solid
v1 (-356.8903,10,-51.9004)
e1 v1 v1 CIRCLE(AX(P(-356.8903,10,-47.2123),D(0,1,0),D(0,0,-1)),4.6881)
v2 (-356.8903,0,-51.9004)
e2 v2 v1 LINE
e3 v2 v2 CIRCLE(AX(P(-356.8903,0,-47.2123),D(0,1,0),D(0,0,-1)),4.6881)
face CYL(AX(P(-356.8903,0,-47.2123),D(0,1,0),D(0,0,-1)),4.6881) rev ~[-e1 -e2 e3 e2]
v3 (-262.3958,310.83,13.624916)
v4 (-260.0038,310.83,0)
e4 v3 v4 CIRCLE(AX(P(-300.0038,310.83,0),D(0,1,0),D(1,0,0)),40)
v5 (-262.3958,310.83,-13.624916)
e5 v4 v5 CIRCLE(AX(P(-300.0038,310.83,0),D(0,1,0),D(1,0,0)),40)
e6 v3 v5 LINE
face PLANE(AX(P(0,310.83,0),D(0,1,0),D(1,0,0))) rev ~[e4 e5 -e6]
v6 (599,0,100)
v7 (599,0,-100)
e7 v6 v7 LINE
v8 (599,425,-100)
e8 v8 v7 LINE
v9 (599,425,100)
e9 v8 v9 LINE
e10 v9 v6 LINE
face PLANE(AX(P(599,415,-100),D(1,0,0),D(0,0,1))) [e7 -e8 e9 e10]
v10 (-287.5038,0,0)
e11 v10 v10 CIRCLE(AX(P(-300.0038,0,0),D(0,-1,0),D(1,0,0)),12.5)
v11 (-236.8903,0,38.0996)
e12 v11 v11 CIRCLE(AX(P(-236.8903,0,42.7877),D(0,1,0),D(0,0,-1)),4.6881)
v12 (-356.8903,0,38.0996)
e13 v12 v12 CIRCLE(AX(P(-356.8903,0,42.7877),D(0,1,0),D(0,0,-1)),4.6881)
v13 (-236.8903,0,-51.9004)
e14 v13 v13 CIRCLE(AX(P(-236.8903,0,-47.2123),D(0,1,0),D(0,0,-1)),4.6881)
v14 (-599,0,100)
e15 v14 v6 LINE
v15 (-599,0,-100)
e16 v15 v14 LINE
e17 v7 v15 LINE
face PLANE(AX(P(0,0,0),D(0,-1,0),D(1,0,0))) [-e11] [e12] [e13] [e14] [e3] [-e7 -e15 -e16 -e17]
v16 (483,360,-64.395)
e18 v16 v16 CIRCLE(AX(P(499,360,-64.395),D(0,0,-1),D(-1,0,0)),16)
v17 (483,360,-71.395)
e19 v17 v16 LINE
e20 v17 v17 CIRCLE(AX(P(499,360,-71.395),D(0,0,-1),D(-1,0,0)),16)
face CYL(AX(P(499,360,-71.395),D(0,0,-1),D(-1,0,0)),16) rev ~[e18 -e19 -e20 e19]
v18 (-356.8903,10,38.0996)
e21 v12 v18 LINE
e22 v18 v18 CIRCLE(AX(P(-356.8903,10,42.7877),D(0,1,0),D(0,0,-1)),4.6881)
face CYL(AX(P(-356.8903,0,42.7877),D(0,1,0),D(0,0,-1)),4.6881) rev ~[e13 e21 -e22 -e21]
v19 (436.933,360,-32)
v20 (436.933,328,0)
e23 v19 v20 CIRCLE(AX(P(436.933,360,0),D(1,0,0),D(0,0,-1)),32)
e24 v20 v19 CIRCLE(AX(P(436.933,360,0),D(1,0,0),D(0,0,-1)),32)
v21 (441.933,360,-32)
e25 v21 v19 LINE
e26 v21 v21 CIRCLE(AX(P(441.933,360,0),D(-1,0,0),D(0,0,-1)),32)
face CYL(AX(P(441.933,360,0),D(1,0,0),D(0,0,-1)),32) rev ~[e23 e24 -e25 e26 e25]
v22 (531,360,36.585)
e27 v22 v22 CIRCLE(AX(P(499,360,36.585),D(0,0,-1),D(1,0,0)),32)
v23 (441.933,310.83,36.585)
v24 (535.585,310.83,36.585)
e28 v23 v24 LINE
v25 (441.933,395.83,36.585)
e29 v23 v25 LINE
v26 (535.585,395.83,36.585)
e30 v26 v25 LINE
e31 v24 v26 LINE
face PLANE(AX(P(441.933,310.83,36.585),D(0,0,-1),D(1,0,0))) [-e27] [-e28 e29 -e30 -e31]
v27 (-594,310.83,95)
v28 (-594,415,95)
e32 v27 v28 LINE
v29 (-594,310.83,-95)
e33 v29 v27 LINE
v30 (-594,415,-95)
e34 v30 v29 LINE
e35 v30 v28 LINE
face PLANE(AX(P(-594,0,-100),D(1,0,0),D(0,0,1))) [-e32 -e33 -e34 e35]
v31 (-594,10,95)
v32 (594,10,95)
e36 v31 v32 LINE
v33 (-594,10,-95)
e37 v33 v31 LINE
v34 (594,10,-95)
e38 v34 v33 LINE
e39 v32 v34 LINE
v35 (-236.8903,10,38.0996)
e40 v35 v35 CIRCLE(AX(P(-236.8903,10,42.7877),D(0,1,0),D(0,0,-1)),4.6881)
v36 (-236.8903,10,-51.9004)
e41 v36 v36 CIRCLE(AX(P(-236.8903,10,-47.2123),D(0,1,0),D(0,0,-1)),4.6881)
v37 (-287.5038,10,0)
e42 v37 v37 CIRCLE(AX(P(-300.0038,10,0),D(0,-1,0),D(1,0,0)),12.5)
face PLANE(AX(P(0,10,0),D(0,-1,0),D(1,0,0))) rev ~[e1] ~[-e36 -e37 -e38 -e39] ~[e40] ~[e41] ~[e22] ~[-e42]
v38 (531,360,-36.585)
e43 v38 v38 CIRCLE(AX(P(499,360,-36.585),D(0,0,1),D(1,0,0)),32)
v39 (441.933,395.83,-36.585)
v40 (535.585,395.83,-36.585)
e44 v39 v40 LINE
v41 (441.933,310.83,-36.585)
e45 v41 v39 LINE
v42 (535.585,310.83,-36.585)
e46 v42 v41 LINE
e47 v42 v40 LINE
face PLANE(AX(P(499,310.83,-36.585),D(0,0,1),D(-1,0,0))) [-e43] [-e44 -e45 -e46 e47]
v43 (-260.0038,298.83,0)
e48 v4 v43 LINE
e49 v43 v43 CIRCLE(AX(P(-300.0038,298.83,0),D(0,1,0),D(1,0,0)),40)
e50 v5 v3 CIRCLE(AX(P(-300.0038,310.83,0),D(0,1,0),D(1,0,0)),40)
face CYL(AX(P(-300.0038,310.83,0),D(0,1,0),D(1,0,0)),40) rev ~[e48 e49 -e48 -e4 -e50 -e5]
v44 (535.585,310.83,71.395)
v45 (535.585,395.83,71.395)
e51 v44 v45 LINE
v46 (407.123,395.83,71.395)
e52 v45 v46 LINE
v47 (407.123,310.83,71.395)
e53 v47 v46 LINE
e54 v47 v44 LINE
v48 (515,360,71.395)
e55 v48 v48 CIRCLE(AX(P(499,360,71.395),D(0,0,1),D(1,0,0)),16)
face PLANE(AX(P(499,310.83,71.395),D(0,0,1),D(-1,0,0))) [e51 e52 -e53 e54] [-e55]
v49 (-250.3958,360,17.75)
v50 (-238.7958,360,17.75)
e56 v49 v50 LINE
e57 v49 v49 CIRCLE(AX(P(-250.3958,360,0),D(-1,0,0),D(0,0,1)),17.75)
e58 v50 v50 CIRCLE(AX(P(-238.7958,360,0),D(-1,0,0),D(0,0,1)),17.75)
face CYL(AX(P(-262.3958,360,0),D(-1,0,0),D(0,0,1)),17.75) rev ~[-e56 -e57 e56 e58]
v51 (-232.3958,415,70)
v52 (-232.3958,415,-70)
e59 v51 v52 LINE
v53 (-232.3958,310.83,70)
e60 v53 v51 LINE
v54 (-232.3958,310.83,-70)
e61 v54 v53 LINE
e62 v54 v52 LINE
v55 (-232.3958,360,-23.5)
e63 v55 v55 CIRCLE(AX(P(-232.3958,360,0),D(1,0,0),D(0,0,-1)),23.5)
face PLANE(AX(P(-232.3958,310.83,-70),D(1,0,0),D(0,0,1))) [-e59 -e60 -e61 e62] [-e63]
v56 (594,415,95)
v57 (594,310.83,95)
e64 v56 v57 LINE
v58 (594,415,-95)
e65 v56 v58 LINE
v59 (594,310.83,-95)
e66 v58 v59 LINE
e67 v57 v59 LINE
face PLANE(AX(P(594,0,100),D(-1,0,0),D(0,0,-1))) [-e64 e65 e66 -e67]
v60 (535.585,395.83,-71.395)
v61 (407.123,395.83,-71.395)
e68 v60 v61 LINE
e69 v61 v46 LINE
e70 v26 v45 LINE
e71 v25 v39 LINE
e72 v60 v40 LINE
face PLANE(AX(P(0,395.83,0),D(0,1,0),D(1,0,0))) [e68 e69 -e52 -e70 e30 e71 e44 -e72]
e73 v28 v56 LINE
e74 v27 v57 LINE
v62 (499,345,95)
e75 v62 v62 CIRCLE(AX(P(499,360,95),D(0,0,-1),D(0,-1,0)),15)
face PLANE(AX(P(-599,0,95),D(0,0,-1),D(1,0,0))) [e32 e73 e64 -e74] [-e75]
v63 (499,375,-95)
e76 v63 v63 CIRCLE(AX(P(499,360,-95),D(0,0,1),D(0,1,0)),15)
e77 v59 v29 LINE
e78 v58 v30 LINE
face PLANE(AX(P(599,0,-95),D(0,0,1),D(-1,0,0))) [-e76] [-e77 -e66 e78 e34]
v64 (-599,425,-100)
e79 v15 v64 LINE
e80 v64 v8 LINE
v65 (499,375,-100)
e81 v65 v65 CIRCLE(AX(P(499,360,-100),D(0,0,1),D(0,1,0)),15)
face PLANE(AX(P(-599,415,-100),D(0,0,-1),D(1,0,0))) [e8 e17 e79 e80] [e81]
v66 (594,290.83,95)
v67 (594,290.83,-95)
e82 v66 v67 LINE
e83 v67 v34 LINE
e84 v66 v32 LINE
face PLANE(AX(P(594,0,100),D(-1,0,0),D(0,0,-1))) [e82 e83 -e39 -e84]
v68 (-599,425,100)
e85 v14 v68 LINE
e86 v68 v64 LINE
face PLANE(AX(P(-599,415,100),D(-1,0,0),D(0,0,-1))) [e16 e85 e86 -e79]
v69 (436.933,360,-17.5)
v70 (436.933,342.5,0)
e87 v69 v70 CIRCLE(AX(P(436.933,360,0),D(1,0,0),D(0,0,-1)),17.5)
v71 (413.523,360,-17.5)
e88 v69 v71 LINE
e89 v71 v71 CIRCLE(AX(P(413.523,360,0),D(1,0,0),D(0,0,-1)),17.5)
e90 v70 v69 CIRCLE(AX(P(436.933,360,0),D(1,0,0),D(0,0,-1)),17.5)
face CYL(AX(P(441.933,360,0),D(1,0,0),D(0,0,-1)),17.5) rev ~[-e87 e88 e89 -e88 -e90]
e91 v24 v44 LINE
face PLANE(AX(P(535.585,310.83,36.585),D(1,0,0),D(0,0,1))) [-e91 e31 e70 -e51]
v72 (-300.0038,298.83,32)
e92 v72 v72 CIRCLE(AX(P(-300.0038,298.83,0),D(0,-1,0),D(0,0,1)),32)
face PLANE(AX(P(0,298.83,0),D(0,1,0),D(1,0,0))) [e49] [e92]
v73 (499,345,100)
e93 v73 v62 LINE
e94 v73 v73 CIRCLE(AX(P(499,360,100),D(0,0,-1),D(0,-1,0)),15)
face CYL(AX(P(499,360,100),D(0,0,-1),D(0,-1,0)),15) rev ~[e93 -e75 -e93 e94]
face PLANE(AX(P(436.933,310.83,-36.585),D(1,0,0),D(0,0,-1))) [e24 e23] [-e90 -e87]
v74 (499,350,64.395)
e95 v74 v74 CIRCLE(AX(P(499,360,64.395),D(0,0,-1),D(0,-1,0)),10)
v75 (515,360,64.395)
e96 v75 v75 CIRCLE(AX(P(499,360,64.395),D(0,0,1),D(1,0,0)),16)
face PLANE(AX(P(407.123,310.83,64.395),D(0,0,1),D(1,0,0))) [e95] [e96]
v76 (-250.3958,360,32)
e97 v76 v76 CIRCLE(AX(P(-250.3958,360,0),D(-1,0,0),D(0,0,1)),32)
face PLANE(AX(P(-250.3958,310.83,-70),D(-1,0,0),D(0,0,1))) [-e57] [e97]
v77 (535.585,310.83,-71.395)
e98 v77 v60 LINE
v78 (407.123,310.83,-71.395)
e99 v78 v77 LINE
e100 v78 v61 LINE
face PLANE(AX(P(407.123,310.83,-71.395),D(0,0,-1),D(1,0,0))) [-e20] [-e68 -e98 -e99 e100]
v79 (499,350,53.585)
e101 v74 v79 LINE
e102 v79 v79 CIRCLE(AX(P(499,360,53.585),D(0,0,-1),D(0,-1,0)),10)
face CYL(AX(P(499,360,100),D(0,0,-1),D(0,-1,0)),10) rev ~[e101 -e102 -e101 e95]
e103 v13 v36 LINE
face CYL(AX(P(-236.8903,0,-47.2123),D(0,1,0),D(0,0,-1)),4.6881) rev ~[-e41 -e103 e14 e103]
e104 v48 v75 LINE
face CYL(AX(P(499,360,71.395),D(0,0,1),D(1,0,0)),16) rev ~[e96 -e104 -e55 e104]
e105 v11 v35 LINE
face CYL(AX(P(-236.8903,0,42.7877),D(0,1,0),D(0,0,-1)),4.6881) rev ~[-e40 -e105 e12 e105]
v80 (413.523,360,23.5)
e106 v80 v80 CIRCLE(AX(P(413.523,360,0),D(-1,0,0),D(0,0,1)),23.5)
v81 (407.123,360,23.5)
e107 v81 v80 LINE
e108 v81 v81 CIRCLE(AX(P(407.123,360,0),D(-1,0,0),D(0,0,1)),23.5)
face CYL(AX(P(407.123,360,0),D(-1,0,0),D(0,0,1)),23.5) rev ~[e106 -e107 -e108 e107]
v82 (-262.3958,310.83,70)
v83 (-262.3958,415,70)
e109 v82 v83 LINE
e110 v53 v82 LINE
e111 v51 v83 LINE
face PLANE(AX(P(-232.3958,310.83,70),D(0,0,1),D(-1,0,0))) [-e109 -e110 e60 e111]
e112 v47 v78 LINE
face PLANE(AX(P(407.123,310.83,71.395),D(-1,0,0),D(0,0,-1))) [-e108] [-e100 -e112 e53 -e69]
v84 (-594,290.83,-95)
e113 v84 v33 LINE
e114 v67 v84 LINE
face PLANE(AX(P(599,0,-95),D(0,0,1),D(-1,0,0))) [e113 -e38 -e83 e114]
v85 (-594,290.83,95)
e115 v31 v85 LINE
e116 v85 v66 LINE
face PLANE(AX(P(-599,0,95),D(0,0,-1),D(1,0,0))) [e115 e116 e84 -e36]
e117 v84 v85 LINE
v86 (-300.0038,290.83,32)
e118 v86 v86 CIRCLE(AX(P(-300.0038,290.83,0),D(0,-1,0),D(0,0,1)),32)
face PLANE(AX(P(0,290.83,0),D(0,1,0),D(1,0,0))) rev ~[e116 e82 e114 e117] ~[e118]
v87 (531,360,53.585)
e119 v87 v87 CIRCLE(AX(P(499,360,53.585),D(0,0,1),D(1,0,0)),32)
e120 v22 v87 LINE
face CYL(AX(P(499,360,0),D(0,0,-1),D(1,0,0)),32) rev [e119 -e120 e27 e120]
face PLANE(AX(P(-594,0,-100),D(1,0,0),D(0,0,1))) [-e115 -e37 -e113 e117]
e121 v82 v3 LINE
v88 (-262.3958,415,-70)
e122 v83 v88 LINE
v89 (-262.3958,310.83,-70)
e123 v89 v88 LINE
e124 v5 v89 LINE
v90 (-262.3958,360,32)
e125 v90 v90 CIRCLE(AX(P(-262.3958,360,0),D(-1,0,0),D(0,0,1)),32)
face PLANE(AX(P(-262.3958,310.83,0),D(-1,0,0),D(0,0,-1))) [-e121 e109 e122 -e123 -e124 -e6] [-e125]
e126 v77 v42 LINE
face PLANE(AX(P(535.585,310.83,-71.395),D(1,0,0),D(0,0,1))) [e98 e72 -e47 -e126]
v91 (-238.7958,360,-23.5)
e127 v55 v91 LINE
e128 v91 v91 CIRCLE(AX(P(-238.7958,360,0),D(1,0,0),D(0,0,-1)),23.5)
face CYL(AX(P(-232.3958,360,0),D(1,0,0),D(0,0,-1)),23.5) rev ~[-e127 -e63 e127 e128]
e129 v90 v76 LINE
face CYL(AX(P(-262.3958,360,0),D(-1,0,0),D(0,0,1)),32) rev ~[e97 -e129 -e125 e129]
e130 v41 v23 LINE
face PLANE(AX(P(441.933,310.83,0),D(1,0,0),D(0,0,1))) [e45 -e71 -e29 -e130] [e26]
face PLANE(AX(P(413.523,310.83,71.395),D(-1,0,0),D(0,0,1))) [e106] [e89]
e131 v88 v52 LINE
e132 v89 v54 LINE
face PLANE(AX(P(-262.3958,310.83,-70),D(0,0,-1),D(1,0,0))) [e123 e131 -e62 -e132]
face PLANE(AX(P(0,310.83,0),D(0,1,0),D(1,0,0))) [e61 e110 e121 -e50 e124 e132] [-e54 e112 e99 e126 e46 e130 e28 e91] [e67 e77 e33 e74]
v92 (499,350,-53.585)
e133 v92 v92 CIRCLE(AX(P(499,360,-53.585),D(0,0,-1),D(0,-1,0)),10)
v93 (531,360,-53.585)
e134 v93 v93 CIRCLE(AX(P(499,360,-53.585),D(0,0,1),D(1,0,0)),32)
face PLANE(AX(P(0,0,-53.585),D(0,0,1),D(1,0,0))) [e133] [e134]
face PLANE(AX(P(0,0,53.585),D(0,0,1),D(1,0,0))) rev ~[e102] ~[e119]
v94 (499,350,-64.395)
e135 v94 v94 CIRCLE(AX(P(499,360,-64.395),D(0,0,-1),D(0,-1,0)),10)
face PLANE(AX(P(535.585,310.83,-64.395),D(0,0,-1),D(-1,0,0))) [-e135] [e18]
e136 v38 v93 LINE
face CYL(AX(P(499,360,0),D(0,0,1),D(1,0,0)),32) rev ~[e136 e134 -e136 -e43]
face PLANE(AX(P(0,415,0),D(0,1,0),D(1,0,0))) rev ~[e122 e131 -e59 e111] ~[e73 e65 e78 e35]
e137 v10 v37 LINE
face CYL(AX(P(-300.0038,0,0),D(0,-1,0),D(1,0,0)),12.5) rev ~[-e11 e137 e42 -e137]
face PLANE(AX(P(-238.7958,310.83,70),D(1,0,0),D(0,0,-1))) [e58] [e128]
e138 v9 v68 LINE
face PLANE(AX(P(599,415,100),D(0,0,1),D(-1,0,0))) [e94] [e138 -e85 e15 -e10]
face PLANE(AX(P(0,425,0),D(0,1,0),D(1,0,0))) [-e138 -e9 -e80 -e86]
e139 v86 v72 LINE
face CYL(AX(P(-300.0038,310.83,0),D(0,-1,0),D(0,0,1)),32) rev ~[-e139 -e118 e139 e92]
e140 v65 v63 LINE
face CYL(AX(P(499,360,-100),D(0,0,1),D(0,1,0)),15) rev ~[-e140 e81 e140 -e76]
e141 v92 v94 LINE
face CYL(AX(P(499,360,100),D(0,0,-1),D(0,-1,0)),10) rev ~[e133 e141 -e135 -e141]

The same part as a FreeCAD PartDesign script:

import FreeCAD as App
import Part
import Sketcher
Q = App.Units.Quantity


def faces_at(feature, points):
    """Names of the faces that lie closest to the given points."""
    faces = feature.Shape.Faces
    near = lambda p: min(range(len(faces)), key=lambda i: faces[i].distToShape(Part.Vertex(*p))[0])
    return sorted({f"Face{near(p) + 1}" for p in points})

doc = App.newDocument("Part")
body = doc.addObject("PartDesign::Body", "Body")

sketch1 = body.newObject("Sketcher::SketchObject", "Sketch")
sketch1.AttachmentSupport = (doc.getObject("XZ_Plane"), [""])
sketch1.MapMode = "FlatFace"
sketch1.addGeometry(Part.LineSegment(App.Vector(-599, -100, 0), App.Vector(-599, 100, 0)), False)
sketch1.addGeometry(Part.LineSegment(App.Vector(-599, 100, 0), App.Vector(599, 100, 0)), False)
sketch1.addGeometry(Part.LineSegment(App.Vector(599, 100, 0), App.Vector(599, -100, 0)), False)
sketch1.addGeometry(Part.LineSegment(App.Vector(599, -100, 0), App.Vector(-599, -100, 0)), False)
sketch1.addConstraint(Sketcher.Constraint("Coincident", 0, 2, 1, 1))
sketch1.addConstraint(Sketcher.Constraint("Coincident", 1, 2, 2, 1))
sketch1.addConstraint(Sketcher.Constraint("Coincident", 2, 2, 3, 1))
sketch1.addConstraint(Sketcher.Constraint("Coincident", 3, 2, 0, 1))
sketch1.addConstraint(Sketcher.Constraint("Vertical", 0))
sketch1.addConstraint(Sketcher.Constraint("Horizontal", 1))
sketch1.addConstraint(Sketcher.Constraint("Vertical", 2))
sketch1.addConstraint(Sketcher.Constraint("Horizontal", 3))
sketch1.addConstraint(Sketcher.Constraint("Symmetric", 0, 2, 2, 2, -1, 1))
sketch1.addConstraint(Sketcher.Constraint("DistanceX", 1, 1, 1, 2, Q("1198 mm")))
sketch1.addConstraint(Sketcher.Constraint("DistanceY", 0, 1, 0, 2, Q("200 mm")))
pad1 = body.newObject("PartDesign::Pad", "Pad")
pad1.Profile = sketch1
pad1.Length = 420
pad1.Reversed = True
doc.recompute()

thickness = body.newObject("PartDesign::Thickness", "Thickness")
thickness.Base = (pad1, faces_at(pad1, [(199.667, 0, -33.333)]))
thickness.Value = 5
thickness.Reversed = True
thickness.Join = "Intersection"

sketch2 = body.newObject("Sketcher::SketchObject", "Sketch001")
sketch2.AttachmentSupport = (doc.getObject("XY_Plane"), [""])
sketch2.MapMode = "FlatFace"
sketch2.AttachmentOffset = App.Placement(App.Vector(0, 0, 100), App.Rotation())
sketch2.addGeometry(Part.Circle(App.Vector(499, 360, 0), App.Vector(0, 0, 1), 15), False)
sketch2.addConstraint(Sketcher.Constraint("Diameter", 0, Q("30 mm")))
sketch2.addConstraint(Sketcher.Constraint("DistanceX", -1, 1, 0, 3, Q("499 mm")))
sketch2.addConstraint(Sketcher.Constraint("DistanceY", -1, 1, 0, 3, Q("360 mm")))
doc.recompute()
hole = body.newObject("PartDesign::Hole", "Hole")
hole.Profile = sketch2
hole.ThreadType = "None"
hole.Diameter = 30
hole.DepthType = "Dimension"
hole.Depth = 20
hole.DrillPoint = "Angled"
hole.DrillPointAngle = 118

sketch3 = body.newObject("Sketcher::SketchObject", "Sketch002")
sketch3.AttachmentSupport = (doc.getObject("XZ_Plane"), [""])
sketch3.MapMode = "FlatFace"
sketch3.AttachmentOffset = App.Placement(App.Vector(0, 0, -310.83), App.Rotation())
sketch3.addGeometry(Part.LineSegment(App.Vector(599, 100, 0), App.Vector(599, -100, 0)), False)
sketch3.addGeometry(Part.LineSegment(App.Vector(599, -100, 0), App.Vector(-599, -100, 0)), False)
sketch3.addGeometry(Part.LineSegment(App.Vector(-599, -100, 0), App.Vector(-599, 100, 0)), False)
sketch3.addGeometry(Part.LineSegment(App.Vector(-599, 100, 0), App.Vector(599, 100, 0)), False)
sketch3.addConstraint(Sketcher.Constraint("Coincident", 0, 2, 1, 1))
sketch3.addConstraint(Sketcher.Constraint("Coincident", 1, 2, 2, 1))
sketch3.addConstraint(Sketcher.Constraint("Coincident", 2, 2, 3, 1))
sketch3.addConstraint(Sketcher.Constraint("Coincident", 3, 2, 0, 1))
sketch3.addConstraint(Sketcher.Constraint("Vertical", 0))
sketch3.addConstraint(Sketcher.Constraint("Horizontal", 1))
sketch3.addConstraint(Sketcher.Constraint("Vertical", 2))
sketch3.addConstraint(Sketcher.Constraint("Horizontal", 3))
sketch3.addConstraint(Sketcher.Constraint("Symmetric", 0, 2, 2, 2, -1, 1))
sketch3.addConstraint(Sketcher.Constraint("DistanceY", 0, 2, -1, 1, Q("100 mm")))
sketch3.addConstraint(Sketcher.Constraint("DistanceX", 1, 2, 1, 1, Q("1198 mm")))
pad2 = body.newObject("PartDesign::Pad", "Pad001")
pad2.Profile = sketch3
pad2.Length = 20

sketch4 = body.newObject("Sketcher::SketchObject", "Sketch003")
sketch4.AttachmentSupport = (doc.getObject("XZ_Plane"), [""])
sketch4.MapMode = "FlatFace"
sketch4.AttachmentOffset = App.Placement(App.Vector(0, 0, -310.83), App.Rotation())
sketch4.addGeometry(Part.LineSegment(App.Vector(536, 71, 0), App.Vector(536, 37, 0)), False)
sketch4.addGeometry(Part.LineSegment(App.Vector(536, 37, 0), App.Vector(442, 37, 0)), False)
sketch4.addGeometry(Part.LineSegment(App.Vector(442, 37, 0), App.Vector(442, -37, 0)), False)
sketch4.addGeometry(Part.LineSegment(App.Vector(442, -37, 0), App.Vector(536, -37, 0)), False)
sketch4.addGeometry(Part.LineSegment(App.Vector(536, -37, 0), App.Vector(536, -71, 0)), False)
sketch4.addGeometry(Part.LineSegment(App.Vector(536, -71, 0), App.Vector(407, -71, 0)), False)
sketch4.addGeometry(Part.LineSegment(App.Vector(407, -71, 0), App.Vector(407, 71, 0)), False)
sketch4.addGeometry(Part.LineSegment(App.Vector(407, 71, 0), App.Vector(536, 71, 0)), False)
sketch4.addConstraint(Sketcher.Constraint("Coincident", 0, 2, 1, 1))
sketch4.addConstraint(Sketcher.Constraint("Coincident", 1, 2, 2, 1))
sketch4.addConstraint(Sketcher.Constraint("Coincident", 2, 2, 3, 1))
sketch4.addConstraint(Sketcher.Constraint("Coincident", 3, 2, 4, 1))
sketch4.addConstraint(Sketcher.Constraint("Coincident", 4, 2, 5, 1))
sketch4.addConstraint(Sketcher.Constraint("Coincident", 5, 2, 6, 1))
sketch4.addConstraint(Sketcher.Constraint("Coincident", 6, 2, 7, 1))
sketch4.addConstraint(Sketcher.Constraint("Coincident", 7, 2, 0, 1))
sketch4.addConstraint(Sketcher.Constraint("Vertical", 0))
sketch4.addConstraint(Sketcher.Constraint("Horizontal", 1))
sketch4.addConstraint(Sketcher.Constraint("Vertical", 2))
sketch4.addConstraint(Sketcher.Constraint("Horizontal", 3))
sketch4.addConstraint(Sketcher.Constraint("Vertical", 4))
sketch4.addConstraint(Sketcher.Constraint("Horizontal", 5))
sketch4.addConstraint(Sketcher.Constraint("Vertical", 6))
sketch4.addConstraint(Sketcher.Constraint("Horizontal", 7))
sketch4.addConstraint(Sketcher.Constraint("Symmetric", 0, 2, 3, 2, -1))
sketch4.addConstraint(Sketcher.Constraint("Equal", 0, 4))
sketch4.addConstraint(Sketcher.Constraint("DistanceY", 0, 2, 0, 1, Q("34.81 mm")))
sketch4.addConstraint(Sketcher.Constraint("DistanceY", 2, 2, 2, 1, Q("73.17 mm")))
sketch4.addConstraint(Sketcher.Constraint("DistanceX", 1, 2, 1, 1, Q("93.652 mm")))
sketch4.addConstraint(Sketcher.Constraint("DistanceX", 5, 2, 2, 2, Q("34.81 mm")))
sketch4.addConstraint(Sketcher.Constraint("DistanceX", -1, 1, 0, 2, Q("535.585 mm")))
pad3 = body.newObject("PartDesign::Pad", "Pad002")
pad3.Profile = sketch4
pad3.Length = 85
pad3.Reversed = True

sketch5 = body.newObject("Sketcher::SketchObject", "Sketch004")
sketch5.AttachmentSupport = (doc.getObject("XY_Plane"), [""])
sketch5.MapMode = "FlatFace"
sketch5.addGeometry(Part.Circle(App.Vector(499, 360, 0), App.Vector(0, 0, 1), 32), False)
sketch5.addConstraint(Sketcher.Constraint("Diameter", 0, Q("64 mm")))
sketch5.addConstraint(Sketcher.Constraint("DistanceX", -1, 1, 0, 3, Q("499 mm")))
sketch5.addConstraint(Sketcher.Constraint("DistanceY", -1, 1, 0, 3, Q("360 mm")))
pocket1 = body.newObject("PartDesign::Pocket", "Pocket")
pocket1.Profile = sketch5
pocket1.Length = 107.17
pocket1.Midplane = True

sketch6 = body.newObject("Sketcher::SketchObject", "Sketch005")
sketch6.AttachmentSupport = (doc.getObject("XZ_Plane"), [""])
sketch6.MapMode = "FlatFace"
sketch6.AttachmentOffset = App.Placement(App.Vector(0, 0, -420), App.Rotation())
sketch6.addGeometry(Part.LineSegment(App.Vector(599, -100, 0), App.Vector(-599, -100, 0)), False)
sketch6.addGeometry(Part.LineSegment(App.Vector(-599, -100, 0), App.Vector(-599, 100, 0)), False)
sketch6.addGeometry(Part.LineSegment(App.Vector(-599, 100, 0), App.Vector(599, 100, 0)), False)
sketch6.addGeometry(Part.LineSegment(App.Vector(599, 100, 0), App.Vector(599, -100, 0)), False)
sketch6.addConstraint(Sketcher.Constraint("Coincident", 0, 2, 1, 1))
sketch6.addConstraint(Sketcher.Constraint("Coincident", 1, 2, 2, 1))
sketch6.addConstraint(Sketcher.Constraint("Coincident", 2, 2, 3, 1))
sketch6.addConstraint(Sketcher.Constraint("Coincident", 3, 2, 0, 1))
sketch6.addConstraint(Sketcher.Constraint("Horizontal", 0))
sketch6.addConstraint(Sketcher.Constraint("Vertical", 1))
sketch6.addConstraint(Sketcher.Constraint("Horizontal", 2))
sketch6.addConstraint(Sketcher.Constraint("Vertical", 3))
sketch6.addConstraint(Sketcher.Constraint("Symmetric", 0, 2, 2, 2, -1, 1))
sketch6.addConstraint(Sketcher.Constraint("DistanceX", 0, 2, 0, 1, Q("1198 mm")))
sketch6.addConstraint(Sketcher.Constraint("DistanceY", 1, 1, 1, 2, Q("200 mm")))
pocket2 = body.newObject("PartDesign::Pocket", "Pocket001")
pocket2.Profile = sketch6
pocket2.Length = 5
pocket2.Reversed = True

sketch7 = body.newObject("Sketcher::SketchObject", "Sketch006")
sketch7.AttachmentSupport = (doc.getObject("XY_Plane"), [""])
sketch7.MapMode = "FlatFace"
sketch7.AttachmentOffset = App.Placement(App.Vector(0, 0, 100), App.Rotation())
sketch7.addGeometry(Part.Circle(App.Vector(499, 360, 0), App.Vector(0, 0, 1), 10), False)
sketch7.addConstraint(Sketcher.Constraint("Diameter", 0, Q("20 mm")))
sketch7.addConstraint(Sketcher.Constraint("DistanceX", -1, 1, 0, 3, Q("499 mm")))
sketch7.addConstraint(Sketcher.Constraint("DistanceY", -1, 1, 0, 3, Q("360 mm")))
doc.recompute()
hole2 = body.newObject("PartDesign::Hole", "Hole001")
hole2.Profile = sketch7
hole2.ThreadType = "None"
hole2.Diameter = 20
hole2.DepthType = "Dimension"
hole2.Depth = 500
hole2.DrillPoint = "Angled"
hole2.DrillPointAngle = 118

sketch8 = body.newObject("Sketcher::SketchObject", "Sketch007")
sketch8.AttachmentSupport = (doc.getObject("YZ_Plane"), [""])
sketch8.MapMode = "FlatFace"
sketch8.AttachmentOffset = App.Placement(App.Vector(0, 0, 441.933), App.Rotation())
sketch8.addGeometry(Part.Circle(App.Vector(360, 0, 0), App.Vector(0, 0, 1), 32), False)
sketch8.addConstraint(Sketcher.Constraint("PointOnObject", 0, 3, -1))
sketch8.addConstraint(Sketcher.Constraint("Diameter", 0, Q("64 mm")))
sketch8.addConstraint(Sketcher.Constraint("DistanceX", -1, 1, 0, 3, Q("360 mm")))
pocket3 = body.newObject("PartDesign::Pocket", "Pocket002")
pocket3.Profile = sketch8
pocket3.Length = 5

sketch9 = body.newObject("Sketcher::SketchObject", "Sketch008")
sketch9.AttachmentSupport = (doc.getObject("YZ_Plane"), [""])
sketch9.MapMode = "FlatFace"
sketch9.AttachmentOffset = App.Placement(App.Vector(0, 0, 441.933), App.Rotation())
sketch9.addGeometry(Part.Circle(App.Vector(360, 0, 0), App.Vector(0, 0, 1), 18), False)
sketch9.addConstraint(Sketcher.Constraint("PointOnObject", 0, 3, -1))
sketch9.addConstraint(Sketcher.Constraint("Diameter", 0, Q("35 mm")))
sketch9.addConstraint(Sketcher.Constraint("DistanceX", -1, 1, 0, 3, Q("360 mm")))
pocket4 = body.newObject("PartDesign::Pocket", "Pocket003")
pocket4.Profile = sketch9
pocket4.Length = 50

sketch10 = body.newObject("Sketcher::SketchObject", "Sketch009")
sketch10.AttachmentSupport = (doc.getObject("XZ_Plane"), [""])
sketch10.MapMode = "FlatFace"
sketch10.AttachmentOffset = App.Placement(App.Vector(0, 0, -310.83), App.Rotation())
sketch10.addGeometry(Part.Circle(App.Vector(-300, 0, 0), App.Vector(0, 0, 1), 32), False)
sketch10.addConstraint(Sketcher.Constraint("PointOnObject", 0, 3, -1))
sketch10.addConstraint(Sketcher.Constraint("Diameter", 0, Q("64 mm")))
sketch10.addConstraint(Sketcher.Constraint("DistanceX", 0, 3, -1, 1, Q("300.0038 mm")))
doc.recompute()
hole3 = body.newObject("PartDesign::Hole", "Hole002")
hole3.Profile = sketch10
hole3.ThreadType = "None"
hole3.Diameter = 64
hole3.DepthType = "Dimension"
hole3.Depth = 500
hole3.DrillPoint = "Angled"
hole3.DrillPointAngle = 118
hole3.Reversed = True

sketch11 = body.newObject("Sketcher::SketchObject", "Sketch010")
sketch11.AttachmentSupport = (doc.getObject("XZ_Plane"), [""])
sketch11.MapMode = "FlatFace"
sketch11.AttachmentOffset = App.Placement(App.Vector(0, 0, -310.83), App.Rotation())
sketch11.addGeometry(Part.LineSegment(App.Vector(-262, -70, 0), App.Vector(-262, 70, 0)), False)
sketch11.addGeometry(Part.LineSegment(App.Vector(-262, 70, 0), App.Vector(-232, 70, 0)), False)
sketch11.addGeometry(Part.LineSegment(App.Vector(-232, 70, 0), App.Vector(-232, -70, 0)), False)
sketch11.addGeometry(Part.LineSegment(App.Vector(-232, -70, 0), App.Vector(-262, -70, 0)), False)
sketch11.addConstraint(Sketcher.Constraint("Coincident", 0, 2, 1, 1))
sketch11.addConstraint(Sketcher.Constraint("Coincident", 1, 2, 2, 1))
sketch11.addConstraint(Sketcher.Constraint("Coincident", 2, 2, 3, 1))
sketch11.addConstraint(Sketcher.Constraint("Coincident", 3, 2, 0, 1))
sketch11.addConstraint(Sketcher.Constraint("Vertical", 0))
sketch11.addConstraint(Sketcher.Constraint("Horizontal", 1))
sketch11.addConstraint(Sketcher.Constraint("Vertical", 2))
sketch11.addConstraint(Sketcher.Constraint("Horizontal", 3))
sketch11.addConstraint(Sketcher.Constraint("DistanceX", 1, 1, 1, 2, Q("30 mm")))
sketch11.addConstraint(Sketcher.Constraint("DistanceY", 0, 1, 0, 2, Q("140 mm")))
sketch11.addConstraint(Sketcher.Constraint("DistanceY", -1, 1, 0, 2, Q("70 mm")))
sketch11.addConstraint(Sketcher.Constraint("DistanceX", 0, 2, -1, 1, Q("262.3958 mm")))
pad4 = body.newObject("PartDesign::Pad", "Pad003")
pad4.Profile = sketch11
pad4.Length = 104.17
pad4.Reversed = True

sketch12 = body.newObject("Sketcher::SketchObject", "Sketch011")
sketch12.AttachmentSupport = (doc.getObject("YZ_Plane"), [""])
sketch12.MapMode = "FlatFace"
sketch12.AttachmentOffset = App.Placement(App.Vector(0, 0, -262.3958), App.Rotation())
sketch12.addGeometry(Part.Circle(App.Vector(360, 0, 0), App.Vector(0, 0, 1), 32), False)
sketch12.addConstraint(Sketcher.Constraint("PointOnObject", 0, 3, -1))
sketch12.addConstraint(Sketcher.Constraint("Diameter", 0, Q("64 mm")))
sketch12.addConstraint(Sketcher.Constraint("DistanceX", -1, 1, 0, 3, Q("360 mm")))
pocket5 = body.newObject("PartDesign::Pocket", "Pocket004")
pocket5.Profile = sketch12
pocket5.Length = 12
pocket5.Reversed = True

sketch13 = body.newObject("Sketcher::SketchObject", "Sketch012")
sketch13.AttachmentSupport = (doc.getObject("YZ_Plane"), [""])
sketch13.MapMode = "FlatFace"
sketch13.AttachmentOffset = App.Placement(App.Vector(0, 0, -262.3958), App.Rotation())
sketch13.addGeometry(Part.Circle(App.Vector(360, 0, 0), App.Vector(0, 0, 1), 18), False)
sketch13.addConstraint(Sketcher.Constraint("PointOnObject", 0, 3, -1))
sketch13.addConstraint(Sketcher.Constraint("Diameter", 0, Q("35.5 mm")))
sketch13.addConstraint(Sketcher.Constraint("DistanceX", -1, 1, 0, 3, Q("360 mm")))
pocket6 = body.newObject("PartDesign::Pocket", "Pocket005")
pocket6.Profile = sketch13
pocket6.Length = 40
pocket6.Reversed = True

sketch14 = body.newObject("Sketcher::SketchObject", "Sketch013")
sketch14.AttachmentSupport = (doc.getObject("XZ_Plane"), [""])
sketch14.MapMode = "FlatFace"
sketch14.AttachmentOffset = App.Placement(App.Vector(0, 0, -310.83), App.Rotation())
sketch14.addGeometry(Part.Circle(App.Vector(-300, 0, 0), App.Vector(0, 0, 1), 40), False)
sketch14.addGeometry(Part.Circle(App.Vector(-300, 0, 0), App.Vector(0, 0, 1), 32), False)
sketch14.addConstraint(Sketcher.Constraint("Coincident", 1, 3, 0, 3))
sketch14.addConstraint(Sketcher.Constraint("PointOnObject", 0, 3, -1))
sketch14.addConstraint(Sketcher.Constraint("Diameter", 0, Q("80 mm")))
sketch14.addConstraint(Sketcher.Constraint("Diameter", 1, Q("64 mm")))
sketch14.addConstraint(Sketcher.Constraint("DistanceX", 0, 3, -1, 1, Q("300.0038 mm")))
pad5 = body.newObject("PartDesign::Pad", "Pad004")
pad5.Profile = sketch14
pad5.Length = 4

sketch15 = body.newObject("Sketcher::SketchObject", "Sketch014")
sketch15.AttachmentSupport = (doc.getObject("XZ_Plane"), [""])
sketch15.MapMode = "FlatFace"
sketch15.addGeometry(Part.LineSegment(App.Vector(594, 95, 0), App.Vector(-594, 95, 0)), False)
sketch15.addGeometry(Part.LineSegment(App.Vector(-594, 95, 0), App.Vector(-594, -95, 0)), False)
sketch15.addGeometry(Part.LineSegment(App.Vector(-594, -95, 0), App.Vector(594, -95, 0)), False)
sketch15.addGeometry(Part.LineSegment(App.Vector(594, -95, 0), App.Vector(594, 95, 0)), False)
sketch15.addGeometry(Part.Circle(App.Vector(-300, 0, 0), App.Vector(0, 0, 1), 12), False)
sketch15.addConstraint(Sketcher.Constraint("Coincident", 0, 2, 1, 1))
sketch15.addConstraint(Sketcher.Constraint("Coincident", 1, 2, 2, 1))
sketch15.addConstraint(Sketcher.Constraint("Coincident", 2, 2, 3, 1))
sketch15.addConstraint(Sketcher.Constraint("Coincident", 3, 2, 0, 1))
sketch15.addConstraint(Sketcher.Constraint("Horizontal", 0))
sketch15.addConstraint(Sketcher.Constraint("Vertical", 1))
sketch15.addConstraint(Sketcher.Constraint("Horizontal", 2))
sketch15.addConstraint(Sketcher.Constraint("Vertical", 3))
sketch15.addConstraint(Sketcher.Constraint("Symmetric", 0, 2, 2, 2, -1, 1))
sketch15.addConstraint(Sketcher.Constraint("PointOnObject", 4, 3, -1))
sketch15.addConstraint(Sketcher.Constraint("Diameter", 4, Q("25 mm")))
sketch15.addConstraint(Sketcher.Constraint("DistanceX", 0, 2, 0, 1, Q("1188 mm")))
sketch15.addConstraint(Sketcher.Constraint("DistanceY", 1, 2, 1, 1, Q("190 mm")))
sketch15.addConstraint(Sketcher.Constraint("DistanceX", 4, 3, -1, 1, Q("300.0038 mm")))
pad6 = body.newObject("PartDesign::Pad", "Pad005")
pad6.Profile = sketch15
pad6.Length = 10
pad6.Reversed = True

sketch16 = body.newObject("Sketcher::SketchObject", "Sketch015")
sketch16.AttachmentSupport = (doc.getObject("XY_Plane"), [""])
sketch16.MapMode = "FlatFace"
sketch16.AttachmentOffset = App.Placement(App.Vector(0, 0, -100), App.Rotation())
sketch16.addGeometry(Part.Circle(App.Vector(499, 360, 0), App.Vector(0, 0, 1), 15), False)
sketch16.addConstraint(Sketcher.Constraint("Diameter", 0, Q("30 mm")))
sketch16.addConstraint(Sketcher.Constraint("DistanceX", -1, 1, 0, 3, Q("499 mm")))
sketch16.addConstraint(Sketcher.Constraint("DistanceY", -1, 1, 0, 3, Q("360 mm")))
doc.recompute()
hole4 = body.newObject("PartDesign::Hole", "Hole003")
hole4.Profile = sketch16
hole4.ThreadType = "None"
hole4.Diameter = 30
hole4.DepthType = "Dimension"
hole4.Depth = 20
hole4.DrillPoint = "Angled"
hole4.DrillPointAngle = 118
hole4.Reversed = True

sketch17 = body.newObject("Sketcher::SketchObject", "Sketch016")
sketch17.AttachmentSupport = (doc.getObject("YZ_Plane"), [""])
sketch17.MapMode = "FlatFace"
sketch17.AttachmentOffset = App.Placement(App.Vector(0, 0, -232.3958), App.Rotation())
sketch17.addGeometry(Part.Circle(App.Vector(360, 0, 0), App.Vector(0, 0, 1), 24), False)
sketch17.addConstraint(Sketcher.Constraint("PointOnObject", 0, 3, -1))
sketch17.addConstraint(Sketcher.Constraint("Diameter", 0, Q("47 mm")))
sketch17.addConstraint(Sketcher.Constraint("DistanceX", -1, 1, 0, 3, Q("360 mm")))
pocket7 = body.newObject("PartDesign::Pocket", "Pocket006")
pocket7.Profile = sketch17
pocket7.Length = 6.4

sketch18 = body.newObject("Sketcher::SketchObject", "Sketch017")
sketch18.AttachmentSupport = (doc.getObject("YZ_Plane"), [""])
sketch18.MapMode = "FlatFace"
sketch18.AttachmentOffset = App.Placement(App.Vector(0, 0, 407.123), App.Rotation())
sketch18.addGeometry(Part.Circle(App.Vector(360, 0, 0), App.Vector(0, 0, 1), 24), False)
sketch18.addConstraint(Sketcher.Constraint("PointOnObject", 0, 3, -1))
sketch18.addConstraint(Sketcher.Constraint("Diameter", 0, Q("47 mm")))
sketch18.addConstraint(Sketcher.Constraint("DistanceX", -1, 1, 0, 3, Q("360 mm")))
pocket8 = body.newObject("PartDesign::Pocket", "Pocket007")
pocket8.Profile = sketch18
pocket8.Length = 6.4
pocket8.Reversed = True

sketch19 = body.newObject("Sketcher::SketchObject", "Sketch018")
sketch19.AttachmentSupport = (doc.getObject("XY_Plane"), [""])
sketch19.MapMode = "FlatFace"
sketch19.AttachmentOffset = App.Placement(App.Vector(0, 0, 71.395), App.Rotation())
sketch19.addGeometry(Part.Circle(App.Vector(499, 360, 0), App.Vector(0, 0, 1), 16), False)
sketch19.addConstraint(Sketcher.Constraint("Diameter", 0, Q("32 mm")))
sketch19.addConstraint(Sketcher.Constraint("DistanceX", -1, 1, 0, 3, Q("499 mm")))
sketch19.addConstraint(Sketcher.Constraint("DistanceY", -1, 1, 0, 3, Q("360 mm")))
pocket9 = body.newObject("PartDesign::Pocket", "Pocket008")
pocket9.Profile = sketch19
pocket9.Length = 7

sketch20 = body.newObject("Sketcher::SketchObject", "Sketch019")
sketch20.AttachmentSupport = (doc.getObject("XY_Plane"), [""])
sketch20.MapMode = "FlatFace"
sketch20.AttachmentOffset = App.Placement(App.Vector(0, 0, -71.395), App.Rotation())
sketch20.addGeometry(Part.Circle(App.Vector(499, 360, 0), App.Vector(0, 0, 1), 16), False)
sketch20.addConstraint(Sketcher.Constraint("Diameter", 0, Q("32 mm")))
sketch20.addConstraint(Sketcher.Constraint("DistanceX", -1, 1, 0, 3, Q("499 mm")))
sketch20.addConstraint(Sketcher.Constraint("DistanceY", -1, 1, 0, 3, Q("360 mm")))
pocket10 = body.newObject("PartDesign::Pocket", "Pocket009")
pocket10.Profile = sketch20
pocket10.Length = 7
pocket10.Reversed = True

sketch21 = body.newObject("Sketcher::SketchObject", "Sketch020")
sketch21.AttachmentSupport = (doc.getObject("XZ_Plane"), [""])
sketch21.MapMode = "FlatFace"
sketch21.AttachmentOffset = App.Placement(App.Vector(0, 0, -310.83), App.Rotation())
sketch21.addGeometry(Part.Circle(App.Vector(-300, 0, 0), App.Vector(0, 0, 1), 40), False)
sketch21.addConstraint(Sketcher.Constraint("PointOnObject", 0, 3, -1))
sketch21.addConstraint(Sketcher.Constraint("Diameter", 0, Q("80 mm")))
sketch21.addConstraint(Sketcher.Constraint("DistanceX", 0, 3, -1, 1, Q("300.0038 mm")))
pocket11 = body.newObject("PartDesign::Pocket", "Pocket010")
pocket11.Profile = sketch21
pocket11.Length = 12
pocket11.Reversed = True

sketch22 = body.newObject("Sketcher::SketchObject", "Sketch021")
sketch22.AttachmentSupport = (doc.getObject("XZ_Plane"), [""])
sketch22.MapMode = "FlatFace"
sketch22.addGeometry(Part.Circle(App.Vector(-356.9, 42.8, 0), App.Vector(0, 0, 1), 4.7), False)
sketch22.addGeometry(Part.Circle(App.Vector(-236.9, 42.8, 0), App.Vector(0, 0, 1), 4.7), False)
sketch22.addGeometry(Part.Circle(App.Vector(-236.9, -47.2, 0), App.Vector(0, 0, 1), 4.7), False)
sketch22.addGeometry(Part.Circle(App.Vector(-356.9, -47.2, 0), App.Vector(0, 0, 1), 4.7), False)
sketch22.addConstraint(Sketcher.Constraint("Equal", 0, 1))
sketch22.addConstraint(Sketcher.Constraint("Equal", 1, 2))
sketch22.addConstraint(Sketcher.Constraint("Equal", 2, 3))
sketch22.addConstraint(Sketcher.Constraint("Horizontal", 0, 3, 1, 3))
sketch22.addConstraint(Sketcher.Constraint("Horizontal", 2, 3, 3, 3))
sketch22.addConstraint(Sketcher.Constraint("Vertical", 1, 3, 2, 3))
sketch22.addConstraint(Sketcher.Constraint("Vertical", 0, 3, 3, 3))
sketch22.addConstraint(Sketcher.Constraint("DistanceX", 0, 3, 1, 3, Q("120 mm")))
sketch22.addConstraint(Sketcher.Constraint("DistanceY", 2, 3, 1, 3, Q("90 mm")))
sketch22.addConstraint(Sketcher.Constraint("Diameter", 0, Q("9.3762 mm")))
sketch22.addConstraint(Sketcher.Constraint("DistanceX", 0, 3, -1, 1, Q("356.8903 mm")))
sketch22.addConstraint(Sketcher.Constraint("DistanceY", -1, 1, 0, 3, Q("42.7877 mm")))
doc.recompute()
hole5 = body.newObject("PartDesign::Hole", "Hole004")
hole5.Profile = sketch22
hole5.ThreadType = "None"
hole5.Diameter = 9.3762
hole5.DepthType = "Dimension"
hole5.Depth = 29.3
hole5.DrillPoint = "Angled"
hole5.DrillPointAngle = 118

sketch23 = body.newObject("Sketcher::SketchObject", "Sketch022")
sketch23.AttachmentSupport = (doc.getObject("XZ_Plane"), [""])
sketch23.MapMode = "FlatFace"
sketch23.AttachmentOffset = App.Placement(App.Vector(0, 0, -415), App.Rotation())
sketch23.addGeometry(Part.LineSegment(App.Vector(599, -100, 0), App.Vector(-599, -100, 0)), False)
sketch23.addGeometry(Part.LineSegment(App.Vector(-599, -100, 0), App.Vector(-599, 100, 0)), False)
sketch23.addGeometry(Part.LineSegment(App.Vector(-599, 100, 0), App.Vector(599, 100, 0)), False)
sketch23.addGeometry(Part.LineSegment(App.Vector(599, 100, 0), App.Vector(599, -100, 0)), False)
sketch23.addConstraint(Sketcher.Constraint("Coincident", 0, 2, 1, 1))
sketch23.addConstraint(Sketcher.Constraint("Coincident", 1, 2, 2, 1))
sketch23.addConstraint(Sketcher.Constraint("Coincident", 2, 2, 3, 1))
sketch23.addConstraint(Sketcher.Constraint("Coincident", 3, 2, 0, 1))
sketch23.addConstraint(Sketcher.Constraint("Horizontal", 0))
sketch23.addConstraint(Sketcher.Constraint("Vertical", 1))
sketch23.addConstraint(Sketcher.Constraint("Horizontal", 2))
sketch23.addConstraint(Sketcher.Constraint("Vertical", 3))
sketch23.addConstraint(Sketcher.Constraint("Symmetric", 0, 2, 2, 2, -1, 1))
sketch23.addConstraint(Sketcher.Constraint("DistanceX", 0, 2, 0, 1, Q("1198 mm")))
sketch23.addConstraint(Sketcher.Constraint("DistanceY", 1, 1, 1, 2, Q("200 mm")))
pad7 = body.newObject("PartDesign::Pad", "Pad006")
pad7.Profile = sketch23
pad7.Length = 10
pad7.Reversed = True

doc.recompute()
